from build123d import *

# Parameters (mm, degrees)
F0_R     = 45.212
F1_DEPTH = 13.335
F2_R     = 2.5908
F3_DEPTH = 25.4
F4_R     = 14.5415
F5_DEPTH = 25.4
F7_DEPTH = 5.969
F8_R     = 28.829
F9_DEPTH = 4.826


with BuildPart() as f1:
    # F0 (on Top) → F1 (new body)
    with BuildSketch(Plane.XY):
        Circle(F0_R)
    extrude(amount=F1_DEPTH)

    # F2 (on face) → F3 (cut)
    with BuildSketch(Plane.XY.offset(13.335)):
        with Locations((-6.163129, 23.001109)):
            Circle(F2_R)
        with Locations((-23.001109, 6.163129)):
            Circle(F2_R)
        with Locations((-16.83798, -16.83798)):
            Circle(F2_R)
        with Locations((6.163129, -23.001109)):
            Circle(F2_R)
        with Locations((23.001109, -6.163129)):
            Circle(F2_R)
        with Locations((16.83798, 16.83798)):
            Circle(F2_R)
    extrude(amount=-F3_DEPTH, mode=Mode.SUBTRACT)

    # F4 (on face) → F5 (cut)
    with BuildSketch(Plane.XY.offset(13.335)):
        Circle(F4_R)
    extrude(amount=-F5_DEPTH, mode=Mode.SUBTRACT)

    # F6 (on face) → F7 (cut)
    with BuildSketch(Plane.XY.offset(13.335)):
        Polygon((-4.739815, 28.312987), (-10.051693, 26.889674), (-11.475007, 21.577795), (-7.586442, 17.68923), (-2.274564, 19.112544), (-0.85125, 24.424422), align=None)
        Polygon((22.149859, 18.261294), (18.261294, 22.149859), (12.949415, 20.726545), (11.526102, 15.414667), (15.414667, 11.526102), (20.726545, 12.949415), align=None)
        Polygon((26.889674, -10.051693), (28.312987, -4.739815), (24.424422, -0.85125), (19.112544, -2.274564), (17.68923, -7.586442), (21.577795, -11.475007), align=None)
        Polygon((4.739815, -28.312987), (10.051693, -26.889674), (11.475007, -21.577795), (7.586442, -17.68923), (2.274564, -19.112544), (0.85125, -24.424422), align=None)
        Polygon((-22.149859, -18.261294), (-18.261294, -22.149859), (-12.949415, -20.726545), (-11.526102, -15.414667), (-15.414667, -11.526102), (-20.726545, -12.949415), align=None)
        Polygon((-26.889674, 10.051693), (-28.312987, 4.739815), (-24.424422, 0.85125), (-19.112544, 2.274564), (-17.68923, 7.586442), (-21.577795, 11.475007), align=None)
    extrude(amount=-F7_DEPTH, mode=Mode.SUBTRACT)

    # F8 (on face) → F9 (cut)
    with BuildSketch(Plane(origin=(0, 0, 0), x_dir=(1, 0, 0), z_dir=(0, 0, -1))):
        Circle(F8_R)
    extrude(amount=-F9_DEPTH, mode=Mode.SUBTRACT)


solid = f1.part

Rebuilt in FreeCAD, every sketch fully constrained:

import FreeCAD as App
import Part
import Sketcher
from FreeCAD import Vector
Q = App.Units.Quantity

doc = App.newDocument("Part")
params = doc.addObject("Spreadsheet::Sheet", "Params")
for row, (alias, value) in enumerate([
    ("sketch1_diameter", "3.56 in"),
    ("pad1_length", "0.525 in"),
    ("sketch2_diameter", "0.204 in"),
    ("pocket1_length", "1 in"),
    ("sketch3_diameter", "1.145 in"),
    ("pocket2_length", "1 in"),
    ("pocket3_length", "0.235 in"),
    ("sketch5_diameter", "2.27 in"),
    ("pocket4_length", "0.19 in"),
], start=1):
    params.set(f"A{row}", alias)
    params.set(f"B{row}", "=" + value)
    params.setAlias(f"B{row}", alias)

body = doc.addObject("PartDesign::Body", "Body")

# Sketch on XY plane
sketch1 = body.newObject("Sketcher::SketchObject", "Sketch")
sketch1.AttachmentSupport = (doc.getObject("XY_Plane"), [""])
sketch1.MapMode = "FlatFace"
sketch1.addGeometry(Part.Circle(Vector(0, 0, 0), Vector(0, 0, 1), 45), False)
sketch1.addConstraint([
    Sketcher.Constraint("Coincident", 0, 3, -1, 1),
    Sketcher.Constraint("Diameter", 0, Q("3.56 in")),
])
sketch1.setExpression("Constraints[1]", "Params.sketch1_diameter")
pad1 = body.newObject("PartDesign::Pad", "Pad")
pad1.Profile = sketch1
pad1.setExpression("Length", "Params.pad1_length")

# Sketch on XY plane
sketch2 = body.newObject("Sketcher::SketchObject", "Sketch001")
sketch2.AttachmentSupport = (doc.getObject("XY_Plane"), [""])
sketch2.MapMode = "FlatFace"
sketch2.AttachmentOffset = App.Placement(Vector(0, 0, 0.525 * 25.4), App.Rotation())
sketch2.addGeometry([
    Part.Circle(Vector(-6.2, 23, 0), Vector(0, 0, 1), 2.6),  # 0
    Part.Circle(Vector(-23, 6.2, 0), Vector(0, 0, 1), 2.6),  # 1
    Part.Circle(Vector(-16.8, -16.8, 0), Vector(0, 0, 1), 2.6),  # 2
    Part.Circle(Vector(6.2, -23, 0), Vector(0, 0, 1), 2.6),  # 3
    Part.Circle(Vector(23, -6.2, 0), Vector(0, 0, 1), 2.6),  # 4
    Part.Circle(Vector(16.8, 16.8, 0), Vector(0, 0, 1), 2.6),  # 5
], False)
sketch2.addConstraint([
    Sketcher.Constraint("Equal", 0, 1),
    Sketcher.Constraint("Equal", 1, 2),
    Sketcher.Constraint("Equal", 2, 3),
    Sketcher.Constraint("Equal", 3, 4),
    Sketcher.Constraint("Equal", 4, 5),
    Sketcher.Constraint("Symmetric", 0, 3, 3, 3, -1, 1),
    Sketcher.Constraint("Symmetric", 1, 3, 4, 3, -1, 1),
    Sketcher.Constraint("Symmetric", 2, 3, 5, 3, -1, 1),
    Sketcher.Constraint("Diameter", 0, Q("0.204 in")),
    Sketcher.Constraint("DistanceX", 0, 3, -1, 1, Q("6.163129 mm")),
    Sketcher.Constraint("DistanceY", -1, 1, 0, 3, Q("23.001109 mm")),
    Sketcher.Constraint("DistanceX", 1, 3, -1, 1, Q("23.001109 mm")),
    Sketcher.Constraint("DistanceY", -1, 1, 1, 3, Q("6.163129 mm")),
    Sketcher.Constraint("DistanceX", 2, 3, -1, 1, Q("16.83798 mm")),
    Sketcher.Constraint("DistanceY", 2, 3, -1, 1, Q("16.83798 mm")),
])
sketch2.setExpression("Constraints[8]", "Params.sketch2_diameter")
pocket1 = body.newObject("PartDesign::Pocket", "Pocket")
pocket1.Profile = sketch2
pocket1.setExpression("Length", "Params.pocket1_length")

# Sketch on XY plane
sketch3 = body.newObject("Sketcher::SketchObject", "Sketch002")
sketch3.AttachmentSupport = (doc.getObject("XY_Plane"), [""])
sketch3.MapMode = "FlatFace"
sketch3.AttachmentOffset = App.Placement(Vector(0, 0, 0.525 * 25.4), App.Rotation())
sketch3.addGeometry(Part.Circle(Vector(0, 0, 0), Vector(0, 0, 1), 15), False)
sketch3.addConstraint([
    Sketcher.Constraint("Coincident", 0, 3, -1, 1),
    Sketcher.Constraint("Diameter", 0, Q("1.145 in")),
])
sketch3.setExpression("Constraints[1]", "Params.sketch3_diameter")
pocket2 = body.newObject("PartDesign::Pocket", "Pocket001")
pocket2.Profile = sketch3
pocket2.setExpression("Length", "Params.pocket2_length")

# Sketch on XY plane
sketch4 = body.newObject("Sketcher::SketchObject", "Sketch003")
sketch4.AttachmentSupport = (doc.getObject("XY_Plane"), [""])
sketch4.MapMode = "FlatFace"
sketch4.AttachmentOffset = App.Placement(Vector(0, 0, 0.525 * 25.4), App.Rotation())
sketch4.addGeometry([
    Part.LineSegment(Vector(-5, 28, 0), Vector(-10, 27, 0)),  # 0
    Part.LineSegment(Vector(-10, 27, 0), Vector(-11, 22, 0)),  # 1
    Part.LineSegment(Vector(-11, 22, 0), Vector(-8, 18, 0)),  # 2
    Part.LineSegment(Vector(-8, 18, 0), Vector(-2, 19, 0)),  # 3
    Part.LineSegment(Vector(-2, 19, 0), Vector(-1, 24, 0)),  # 4
    Part.LineSegment(Vector(-1, 24, 0), Vector(-5, 28, 0)),  # 5
    Part.LineSegment(Vector(22, 18, 0), Vector(18, 22, 0)),  # 6
    Part.LineSegment(Vector(18, 22, 0), Vector(13, 21, 0)),  # 7
    Part.LineSegment(Vector(13, 21, 0), Vector(12, 15, 0)),  # 8
    Part.LineSegment(Vector(12, 15, 0), Vector(15, 12, 0)),  # 9
    Part.LineSegment(Vector(15, 12, 0), Vector(21, 13, 0)),  # 10
    Part.LineSegment(Vector(21, 13, 0), Vector(22, 18, 0)),  # 11
    Part.LineSegment(Vector(27, -10, 0), Vector(28, -5, 0)),  # 12
    Part.LineSegment(Vector(28, -5, 0), Vector(24, -1, 0)),  # 13
    Part.LineSegment(Vector(24, -1, 0), Vector(19, -2, 0)),  # 14
    Part.LineSegment(Vector(19, -2, 0), Vector(18, -8, 0)),  # 15
    Part.LineSegment(Vector(18, -8, 0), Vector(22, -11, 0)),  # 16
    Part.LineSegment(Vector(22, -11, 0), Vector(27, -10, 0)),  # 17
    Part.LineSegment(Vector(5, -28, 0), Vector(10, -27, 0)),  # 18
    Part.LineSegment(Vector(10, -27, 0), Vector(11, -22, 0)),  # 19
    Part.LineSegment(Vector(11, -22, 0), Vector(8, -18, 0)),  # 20
    Part.LineSegment(Vector(8, -18, 0), Vector(2, -19, 0)),  # 21
    Part.LineSegment(Vector(2, -19, 0), Vector(1, -24, 0)),  # 22
    Part.LineSegment(Vector(1, -24, 0), Vector(5, -28, 0)),  # 23
    Part.LineSegment(Vector(-22, -18, 0), Vector(-18, -22, 0)),  # 24
    Part.LineSegment(Vector(-18, -22, 0), Vector(-13, -21, 0)),  # 25
    Part.LineSegment(Vector(-13, -21, 0), Vector(-12, -15, 0)),  # 26
    Part.LineSegment(Vector(-12, -15, 0), Vector(-15, -12, 0)),  # 27
    Part.LineSegment(Vector(-15, -12, 0), Vector(-21, -13, 0)),  # 28
    Part.LineSegment(Vector(-21, -13, 0), Vector(-22, -18, 0)),  # 29
    Part.LineSegment(Vector(-27, 10, 0), Vector(-28, 5, 0)),  # 30
    Part.LineSegment(Vector(-28, 5, 0), Vector(-24, 1, 0)),  # 31
    Part.LineSegment(Vector(-24, 1, 0), Vector(-19, 2, 0)),  # 32
    Part.LineSegment(Vector(-19, 2, 0), Vector(-18, 8, 0)),  # 33
    Part.LineSegment(Vector(-18, 8, 0), Vector(-22, 11, 0)),  # 34
    Part.LineSegment(Vector(-22, 11, 0), Vector(-27, 10, 0)),  # 35
], False)
sketch4.addConstraint([
    Sketcher.Constraint("Coincident", 0, 2, 1, 1),
    Sketcher.Constraint("Coincident", 1, 2, 2, 1),
    Sketcher.Constraint("Coincident", 2, 2, 3, 1),
    Sketcher.Constraint("Coincident", 3, 2, 4, 1),
    Sketcher.Constraint("Coincident", 4, 2, 5, 1),
    Sketcher.Constraint("Coincident", 5, 2, 0, 1),
    Sketcher.Constraint("Coincident", 6, 2, 7, 1),
    Sketcher.Constraint("Coincident", 7, 2, 8, 1),
    Sketcher.Constraint("Coincident", 8, 2, 9, 1),
    Sketcher.Constraint("Coincident", 9, 2, 10, 1),
    Sketcher.Constraint("Coincident", 10, 2, 11, 1),
    Sketcher.Constraint("Coincident", 11, 2, 6, 1),
    Sketcher.Constraint("Coincident", 12, 2, 13, 1),
    Sketcher.Constraint("Coincident", 13, 2, 14, 1),
    Sketcher.Constraint("Coincident", 14, 2, 15, 1),
    Sketcher.Constraint("Coincident", 15, 2, 16, 1),
    Sketcher.Constraint("Coincident", 16, 2, 17, 1),
    Sketcher.Constraint("Coincident", 17, 2, 12, 1),
    Sketcher.Constraint("Coincident", 18, 2, 19, 1),
    Sketcher.Constraint("Coincident", 19, 2, 20, 1),
    Sketcher.Constraint("Coincident", 20, 2, 21, 1),
    Sketcher.Constraint("Coincident", 21, 2, 22, 1),
    Sketcher.Constraint("Coincident", 22, 2, 23, 1),
    Sketcher.Constraint("Coincident", 23, 2, 18, 1),
    Sketcher.Constraint("Coincident", 24, 2, 25, 1),
    Sketcher.Constraint("Coincident", 25, 2, 26, 1),
    Sketcher.Constraint("Coincident", 26, 2, 27, 1),
    Sketcher.Constraint("Coincident", 27, 2, 28, 1),
    Sketcher.Constraint("Coincident", 28, 2, 29, 1),
    Sketcher.Constraint("Coincident", 29, 2, 24, 1),
    Sketcher.Constraint("Coincident", 30, 2, 31, 1),
    Sketcher.Constraint("Coincident", 31, 2, 32, 1),
    Sketcher.Constraint("Coincident", 32, 2, 33, 1),
    Sketcher.Constraint("Coincident", 33, 2, 34, 1),
    Sketcher.Constraint("Coincident", 34, 2, 35, 1),
    Sketcher.Constraint("Coincident", 35, 2, 30, 1),
    Sketcher.Constraint("Symmetric", 0, 2, 18, 2, -1, 1),
    Sketcher.Constraint("Symmetric", 1, 2, 19, 2, -1, 1),
    Sketcher.Constraint("Symmetric", 2, 2, 20, 2, -1, 1),
    Sketcher.Constraint("Symmetric", 3, 2, 21, 2, -1, 1),
    Sketcher.Constraint("Symmetric", 4, 2, 22, 2, -1, 1),
    Sketcher.Constraint("Symmetric", 5, 2, 23, 2, -1, 1),
    Sketcher.Constraint("Symmetric", 6, 2, 24, 2, -1, 1),
    Sketcher.Constraint("Symmetric", 7, 2, 25, 2, -1, 1),
    Sketcher.Constraint("Symmetric", 8, 2, 26, 2, -1, 1),
    Sketcher.Constraint("Symmetric", 9, 2, 27, 2, -1, 1),
    Sketcher.Constraint("Symmetric", 10, 2, 28, 2, -1, 1),
    Sketcher.Constraint("Symmetric", 11, 2, 29, 2, -1, 1),
    Sketcher.Constraint("Symmetric", 12, 2, 30, 2, -1, 1),
    Sketcher.Constraint("Symmetric", 13, 2, 31, 2, -1, 1),
    Sketcher.Constraint("Symmetric", 14, 2, 32, 2, -1, 1),
    Sketcher.Constraint("Symmetric", 15, 2, 33, 2, -1, 1),
    Sketcher.Constraint("Symmetric", 16, 2, 34, 2, -1, 1),
    Sketcher.Constraint("Symmetric", 17, 2, 35, 2, -1, 1),
    Sketcher.Constraint("Parallel", 0, 3),
    Sketcher.Constraint("Parallel", 1, 4),
    Sketcher.Constraint("Parallel", 2, 5),
    Sketcher.Constraint("Parallel", 5, 6),
    Sketcher.Constraint("Parallel", 3, 7),
    Sketcher.Constraint("Parallel", 4, 8),
    Sketcher.Constraint("Parallel", 6, 9),
    Sketcher.Constraint("Parallel", 7, 10),
    Sketcher.Constraint("Parallel", 8, 11),
    Sketcher.Constraint("Parallel", 11, 12),
    Sketcher.Constraint("Parallel", 9, 13),
    Sketcher.Constraint("Parallel", 10, 14),
    Sketcher.Constraint("Parallel", 12, 15),
    Sketcher.Constraint("Parallel", 13, 16),
    Sketcher.Constraint("Parallel", 14, 17),
    Sketcher.Constraint("Equal", 0, 1),
    Sketcher.Constraint("Equal", 1, 2),
    Sketcher.Constraint("Equal", 2, 3),
    Sketcher.Constraint("Equal", 5, 6),
    Sketcher.Constraint("Equal", 6, 7),
    Sketcher.Constraint("Equal", 7, 8),
    Sketcher.Constraint("Equal", 8, 9),
    Sketcher.Constraint("Equal", 11, 12),
    Sketcher.Constraint("Equal", 12, 13),
    Sketcher.Constraint("Equal", 13, 14),
    Sketcher.Constraint("Equal", 14, 15),
    Sketcher.Constraint("Angle", 0, Q("-165.000004 deg")),
    Sketcher.Constraint("Angle", 1, Q("-105.000003 deg")),
    Sketcher.Constraint("Angle", 2, Q("-45 deg")),
    Sketcher.Constraint("DistanceY", 3, 2, 7, 2, Q("1.614001 mm")),
    Sketcher.Constraint("DistanceX", 14, 2, 10, 2, Q("1.614001 mm")),
    Sketcher.Constraint("DistanceX", 18, 2, 16, 2, Q("11.526102 mm")),
    Sketcher.Constraint("DistanceY", 19, 2, 17, 2, Q("11.526102 mm")),
    Sketcher.Constraint("Distance", 0, Q("5.499261 mm")),
    Sketcher.Constraint("DistanceY", -1, 1, 2, 2, Q("17.68923 mm")),
    Sketcher.Constraint("DistanceX", 4, 2, -1, 1, Q("0.85125 mm")),
])
pocket3 = body.newObject("PartDesign::Pocket", "Pocket002")
pocket3.Profile = sketch4
pocket3.setExpression("Length", "Params.pocket3_length")

# Sketch on XY plane
sketch5 = body.newObject("Sketcher::SketchObject", "Sketch004")
sketch5.AttachmentSupport = (doc.getObject("XY_Plane"), [""])
sketch5.MapMode = "FlatFace"
sketch5.addGeometry(Part.Circle(Vector(0, 0, 0), Vector(0, 0, 1), 29), False)
sketch5.addConstraint([
    Sketcher.Constraint("Coincident", 0, 3, -1, 1),
    Sketcher.Constraint("Diameter", 0, Q("2.27 in")),
])
sketch5.setExpression("Constraints[1]", "Params.sketch5_diameter")
pocket4 = body.newObject("PartDesign::Pocket", "Pocket003")
pocket4.Profile = sketch5
pocket4.setExpression("Length", "Params.pocket4_length")
pocket4.Reversed = True

doc.recompute()
